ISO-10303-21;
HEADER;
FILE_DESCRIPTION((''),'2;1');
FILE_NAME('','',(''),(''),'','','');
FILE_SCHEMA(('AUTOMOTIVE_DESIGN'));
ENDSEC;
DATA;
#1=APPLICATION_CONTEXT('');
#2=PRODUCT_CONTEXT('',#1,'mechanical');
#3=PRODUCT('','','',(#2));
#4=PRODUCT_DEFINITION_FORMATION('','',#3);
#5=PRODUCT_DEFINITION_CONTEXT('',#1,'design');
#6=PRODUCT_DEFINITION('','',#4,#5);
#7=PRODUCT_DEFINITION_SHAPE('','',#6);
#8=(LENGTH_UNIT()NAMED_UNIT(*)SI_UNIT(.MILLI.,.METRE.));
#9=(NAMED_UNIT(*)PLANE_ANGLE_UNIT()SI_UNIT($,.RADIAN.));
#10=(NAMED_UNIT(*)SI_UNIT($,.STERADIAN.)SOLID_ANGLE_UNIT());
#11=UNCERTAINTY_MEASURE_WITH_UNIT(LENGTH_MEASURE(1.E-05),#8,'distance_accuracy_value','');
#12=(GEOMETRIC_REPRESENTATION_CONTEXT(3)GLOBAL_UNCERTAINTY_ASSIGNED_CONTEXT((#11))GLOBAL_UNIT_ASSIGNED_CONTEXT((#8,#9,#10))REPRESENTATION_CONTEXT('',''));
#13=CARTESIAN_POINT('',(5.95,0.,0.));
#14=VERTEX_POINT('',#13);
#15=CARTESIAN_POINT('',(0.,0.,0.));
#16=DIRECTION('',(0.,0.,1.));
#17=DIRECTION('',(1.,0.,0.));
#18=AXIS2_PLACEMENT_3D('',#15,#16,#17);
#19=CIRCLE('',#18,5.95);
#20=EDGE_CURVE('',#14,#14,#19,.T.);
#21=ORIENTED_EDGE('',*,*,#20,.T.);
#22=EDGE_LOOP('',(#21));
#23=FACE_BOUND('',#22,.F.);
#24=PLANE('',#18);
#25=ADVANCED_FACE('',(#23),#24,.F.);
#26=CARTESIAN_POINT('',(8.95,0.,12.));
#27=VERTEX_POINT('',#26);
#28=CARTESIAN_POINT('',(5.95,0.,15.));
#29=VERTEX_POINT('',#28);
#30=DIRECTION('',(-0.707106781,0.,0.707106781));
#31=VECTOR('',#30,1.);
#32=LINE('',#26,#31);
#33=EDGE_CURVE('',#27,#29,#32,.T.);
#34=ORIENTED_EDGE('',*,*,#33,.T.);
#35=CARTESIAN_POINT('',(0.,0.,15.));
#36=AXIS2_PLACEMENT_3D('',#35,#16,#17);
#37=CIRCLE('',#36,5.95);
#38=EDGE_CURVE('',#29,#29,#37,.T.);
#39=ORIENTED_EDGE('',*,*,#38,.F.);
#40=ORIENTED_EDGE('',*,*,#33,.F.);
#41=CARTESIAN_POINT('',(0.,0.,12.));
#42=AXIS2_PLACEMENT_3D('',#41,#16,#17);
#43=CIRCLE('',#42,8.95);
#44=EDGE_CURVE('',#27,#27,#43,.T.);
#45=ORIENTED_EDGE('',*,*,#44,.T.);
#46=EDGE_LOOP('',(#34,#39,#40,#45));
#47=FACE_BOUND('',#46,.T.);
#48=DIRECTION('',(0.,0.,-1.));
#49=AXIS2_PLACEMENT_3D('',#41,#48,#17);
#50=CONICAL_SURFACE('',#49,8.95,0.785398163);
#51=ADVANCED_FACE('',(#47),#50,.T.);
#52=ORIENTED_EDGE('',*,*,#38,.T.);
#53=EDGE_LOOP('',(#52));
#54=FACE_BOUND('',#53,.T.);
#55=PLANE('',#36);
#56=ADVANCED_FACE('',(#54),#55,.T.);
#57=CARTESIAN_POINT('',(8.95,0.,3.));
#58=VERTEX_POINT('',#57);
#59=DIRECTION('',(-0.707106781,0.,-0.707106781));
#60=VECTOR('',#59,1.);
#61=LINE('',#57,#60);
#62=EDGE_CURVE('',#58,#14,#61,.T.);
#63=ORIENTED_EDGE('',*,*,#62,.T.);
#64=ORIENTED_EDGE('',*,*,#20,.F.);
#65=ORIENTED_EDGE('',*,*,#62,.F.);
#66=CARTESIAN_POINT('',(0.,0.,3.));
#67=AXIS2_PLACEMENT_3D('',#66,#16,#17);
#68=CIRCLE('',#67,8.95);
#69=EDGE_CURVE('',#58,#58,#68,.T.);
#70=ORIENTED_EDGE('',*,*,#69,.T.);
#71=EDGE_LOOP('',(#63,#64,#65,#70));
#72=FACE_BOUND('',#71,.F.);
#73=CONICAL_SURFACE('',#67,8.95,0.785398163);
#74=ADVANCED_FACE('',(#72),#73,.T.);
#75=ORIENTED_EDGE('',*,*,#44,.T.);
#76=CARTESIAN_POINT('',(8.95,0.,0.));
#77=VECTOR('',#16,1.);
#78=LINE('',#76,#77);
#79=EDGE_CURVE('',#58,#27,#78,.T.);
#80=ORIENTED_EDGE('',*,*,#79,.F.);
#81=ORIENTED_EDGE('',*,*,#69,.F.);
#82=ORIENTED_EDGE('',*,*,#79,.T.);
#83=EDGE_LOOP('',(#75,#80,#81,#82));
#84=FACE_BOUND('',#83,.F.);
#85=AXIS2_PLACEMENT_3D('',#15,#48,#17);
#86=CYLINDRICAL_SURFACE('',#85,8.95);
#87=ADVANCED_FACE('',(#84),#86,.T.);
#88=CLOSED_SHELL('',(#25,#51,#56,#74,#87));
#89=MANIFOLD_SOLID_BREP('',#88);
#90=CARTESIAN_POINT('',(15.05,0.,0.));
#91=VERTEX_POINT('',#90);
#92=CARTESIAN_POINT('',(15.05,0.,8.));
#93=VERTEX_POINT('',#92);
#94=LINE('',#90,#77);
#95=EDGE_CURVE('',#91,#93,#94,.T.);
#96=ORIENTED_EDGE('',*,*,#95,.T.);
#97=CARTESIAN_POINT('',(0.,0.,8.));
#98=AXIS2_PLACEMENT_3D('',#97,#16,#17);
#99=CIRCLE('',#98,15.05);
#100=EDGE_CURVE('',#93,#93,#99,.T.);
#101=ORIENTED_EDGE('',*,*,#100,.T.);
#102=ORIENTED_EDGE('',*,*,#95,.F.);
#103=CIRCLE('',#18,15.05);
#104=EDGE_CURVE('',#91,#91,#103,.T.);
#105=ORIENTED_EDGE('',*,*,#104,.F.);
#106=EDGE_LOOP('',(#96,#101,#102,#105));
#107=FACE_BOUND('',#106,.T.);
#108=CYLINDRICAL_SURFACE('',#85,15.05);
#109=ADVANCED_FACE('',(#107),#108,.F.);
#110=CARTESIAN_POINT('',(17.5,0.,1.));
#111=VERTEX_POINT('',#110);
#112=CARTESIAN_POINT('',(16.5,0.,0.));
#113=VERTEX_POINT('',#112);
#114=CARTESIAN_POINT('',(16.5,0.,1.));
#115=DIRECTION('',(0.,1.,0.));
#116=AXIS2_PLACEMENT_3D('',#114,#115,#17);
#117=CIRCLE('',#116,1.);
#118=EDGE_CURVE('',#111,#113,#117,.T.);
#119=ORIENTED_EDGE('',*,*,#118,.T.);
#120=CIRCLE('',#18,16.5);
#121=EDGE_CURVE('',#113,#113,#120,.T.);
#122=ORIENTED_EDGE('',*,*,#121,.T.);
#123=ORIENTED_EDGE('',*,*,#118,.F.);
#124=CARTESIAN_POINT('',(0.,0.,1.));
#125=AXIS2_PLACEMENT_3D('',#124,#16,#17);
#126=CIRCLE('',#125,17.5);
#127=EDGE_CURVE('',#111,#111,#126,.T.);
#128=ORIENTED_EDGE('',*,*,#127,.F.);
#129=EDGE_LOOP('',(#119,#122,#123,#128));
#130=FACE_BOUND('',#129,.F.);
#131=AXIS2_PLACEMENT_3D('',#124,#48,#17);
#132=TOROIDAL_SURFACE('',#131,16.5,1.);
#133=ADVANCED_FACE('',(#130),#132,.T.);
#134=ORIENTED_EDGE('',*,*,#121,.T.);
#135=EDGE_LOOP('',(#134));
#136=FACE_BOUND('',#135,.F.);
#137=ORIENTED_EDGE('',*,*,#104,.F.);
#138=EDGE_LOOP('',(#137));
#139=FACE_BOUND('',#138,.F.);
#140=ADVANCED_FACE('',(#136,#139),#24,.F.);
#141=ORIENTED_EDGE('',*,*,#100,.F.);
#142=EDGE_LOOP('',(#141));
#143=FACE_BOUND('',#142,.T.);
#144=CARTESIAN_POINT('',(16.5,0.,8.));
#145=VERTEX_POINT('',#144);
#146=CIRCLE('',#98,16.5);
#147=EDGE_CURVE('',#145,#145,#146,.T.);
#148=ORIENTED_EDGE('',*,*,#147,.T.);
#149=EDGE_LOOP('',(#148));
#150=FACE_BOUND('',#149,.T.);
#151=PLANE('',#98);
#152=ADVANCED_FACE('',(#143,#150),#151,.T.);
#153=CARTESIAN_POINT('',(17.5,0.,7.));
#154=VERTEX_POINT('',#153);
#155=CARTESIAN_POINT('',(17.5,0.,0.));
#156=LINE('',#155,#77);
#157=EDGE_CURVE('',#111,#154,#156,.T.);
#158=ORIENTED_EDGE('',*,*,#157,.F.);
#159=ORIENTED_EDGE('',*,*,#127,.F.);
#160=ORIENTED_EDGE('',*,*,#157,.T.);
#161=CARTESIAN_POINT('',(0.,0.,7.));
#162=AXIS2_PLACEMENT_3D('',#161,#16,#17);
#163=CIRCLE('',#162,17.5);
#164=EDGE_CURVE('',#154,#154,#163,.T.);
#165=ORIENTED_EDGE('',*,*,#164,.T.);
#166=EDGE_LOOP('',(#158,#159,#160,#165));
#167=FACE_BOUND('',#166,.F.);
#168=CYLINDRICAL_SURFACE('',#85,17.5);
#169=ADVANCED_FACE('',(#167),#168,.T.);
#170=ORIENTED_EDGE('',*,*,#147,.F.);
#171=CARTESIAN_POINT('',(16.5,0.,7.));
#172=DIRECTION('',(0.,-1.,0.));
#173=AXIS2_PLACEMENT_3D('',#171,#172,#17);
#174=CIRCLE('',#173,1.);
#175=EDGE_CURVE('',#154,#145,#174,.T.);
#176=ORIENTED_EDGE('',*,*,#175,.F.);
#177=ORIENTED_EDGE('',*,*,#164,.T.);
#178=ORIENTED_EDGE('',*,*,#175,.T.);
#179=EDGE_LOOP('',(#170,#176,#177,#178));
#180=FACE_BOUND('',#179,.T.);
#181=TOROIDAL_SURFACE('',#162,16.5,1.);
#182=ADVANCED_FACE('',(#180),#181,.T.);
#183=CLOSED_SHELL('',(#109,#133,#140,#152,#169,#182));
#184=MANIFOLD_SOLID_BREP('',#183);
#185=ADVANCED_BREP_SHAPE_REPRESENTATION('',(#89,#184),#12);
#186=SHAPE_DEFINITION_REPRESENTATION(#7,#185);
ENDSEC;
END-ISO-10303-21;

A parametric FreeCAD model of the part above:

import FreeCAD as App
import Part
import Sketcher
from FreeCAD import Vector
Q = App.Units.Quantity


def edges_at(feature, points):
    """Names of the edges that pass closest to the given points."""
    edges = feature.Shape.Edges
    near = lambda p: min(range(len(edges)), key=lambda i: edges[i].distToShape(Part.Vertex(*p))[0])
    return sorted({f"Edge{near(p) + 1}" for p in points})

doc = App.newDocument("Part")
body = doc.addObject("PartDesign::Body", "Body")

# Sketch on XY plane
sketch1 = body.newObject("Sketcher::SketchObject", "Sketch")
sketch1.AttachmentSupport = (doc.getObject("XY_Plane"), [""])
sketch1.MapMode = "FlatFace"
sketch1.addGeometry([
    Part.Circle(Vector(0, 0, 0), Vector(0, 0, 1), 17.5),
    Part.Circle(Vector(0, 0, 0), Vector(0, 0, 1), 15.05),
], False)
sketch1.addConstraint([
    Sketcher.Constraint("Coincident", 0, 3, -1, 1),
    Sketcher.Constraint("Coincident", 1, 3, -1, 1),
    Sketcher.Constraint("Diameter", 0, Q("35 mm")),
    Sketcher.Constraint("Diameter", 1, Q("30.1 mm")),
])
pad1 = body.newObject("PartDesign::Pad", "Pad")
pad1.Profile = sketch1
pad1.Length = 8
doc.recompute()

fillet = body.newObject("PartDesign::Fillet", "Fillet")
fillet.Base = (pad1, edges_at(pad1, [(17.5, 0, 4), (-17.5, 0, 0), (-17.5, 0, 8)]))
fillet.Radius = 1
body2 = doc.addObject("PartDesign::Body", "Body001")

# Sketch on XY plane
sketch2 = body2.newObject("Sketcher::SketchObject", "Sketch001")
sketch2.AttachmentSupport = (doc.getObject("XY_Plane001"), [""])
sketch2.MapMode = "FlatFace"
sketch2.addGeometry(Part.Circle(Vector(0, 0, 0), Vector(0, 0, 1), 8.95), False)
sketch2.addConstraint([
    Sketcher.Constraint("Coincident", 0, 3, -1, 1),
    Sketcher.Constraint("Diameter", 0, Q("17.9 mm")),
])
pad2 = body2.newObject("PartDesign::Pad", "Pad001")
pad2.Profile = sketch2
pad2.Length = 15
doc.recompute()

chamfer = body2.newObject("PartDesign::Chamfer", "Chamfer")
chamfer.Base = (pad2, ["Edge1"])
chamfer.UseAllEdges = True
chamfer.Size = 3

doc.recompute()
